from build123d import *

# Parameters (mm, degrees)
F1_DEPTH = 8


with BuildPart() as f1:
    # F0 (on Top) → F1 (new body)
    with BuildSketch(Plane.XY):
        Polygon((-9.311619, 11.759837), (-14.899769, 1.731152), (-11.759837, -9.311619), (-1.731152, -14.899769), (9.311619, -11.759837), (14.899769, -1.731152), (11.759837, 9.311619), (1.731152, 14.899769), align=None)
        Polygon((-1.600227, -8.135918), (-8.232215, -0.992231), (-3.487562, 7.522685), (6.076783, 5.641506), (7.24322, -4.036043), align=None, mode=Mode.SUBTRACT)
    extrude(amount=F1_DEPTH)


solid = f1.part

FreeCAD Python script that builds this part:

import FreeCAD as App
import Part
import Sketcher
from FreeCAD import Vector

doc = App.newDocument("Part")
body = doc.addObject("PartDesign::Body", "Body")

sketch1 = body.newObject("Sketcher::SketchObject", "Sketch")
sketch1.AttachmentSupport = (doc.getObject("XY_Plane"), [""])
sketch1.MapMode = "FlatFace"
sketch1.addGeometry(Part.LineSegment(Vector(-9, 12, 0), Vector(-15, 2, 0)), False)
sketch1.addGeometry(Part.LineSegment(Vector(-15, 2, 0), Vector(-12, -9, 0)), False)
sketch1.addGeometry(Part.LineSegment(Vector(-12, -9, 0), Vector(-2, -15, 0)), False)
sketch1.addGeometry(Part.LineSegment(Vector(-2, -15, 0), Vector(9, -12, 0)), False)
sketch1.addGeometry(Part.LineSegment(Vector(9, -12, 0), Vector(15, -2, 0)), False)
sketch1.addGeometry(Part.LineSegment(Vector(15, -2, 0), Vector(12, 9, 0)), False)
sketch1.addGeometry(Part.LineSegment(Vector(12, 9, 0), Vector(2, 15, 0)), False)
sketch1.addGeometry(Part.LineSegment(Vector(2, 15, 0), Vector(-9, 12, 0)), False)
sketch1.addGeometry(Part.LineSegment(Vector(7, -4, 0), Vector(-2, -8, 0)), False)
sketch1.addGeometry(Part.LineSegment(Vector(-2, -8, 0), Vector(-8, -1, 0)), False)
sketch1.addGeometry(Part.LineSegment(Vector(-8, -1, 0), Vector(-3, 8, 0)), False)
sketch1.addGeometry(Part.LineSegment(Vector(-3, 8, 0), Vector(6, 6, 0)), False)
sketch1.addGeometry(Part.LineSegment(Vector(6, 6, 0), Vector(7, -4, 0)), False)
sketch1.addConstraint(Sketcher.Constraint("Coincident", 0, 2, 1, 1))
sketch1.addConstraint(Sketcher.Constraint("Coincident", 1, 2, 2, 1))
sketch1.addConstraint(Sketcher.Constraint("Coincident", 2, 2, 3, 1))
sketch1.addConstraint(Sketcher.Constraint("Coincident", 3, 2, 4, 1))
sketch1.addConstraint(Sketcher.Constraint("Coincident", 4, 2, 5, 1))
sketch1.addConstraint(Sketcher.Constraint("Coincident", 5, 2, 6, 1))
sketch1.addConstraint(Sketcher.Constraint("Coincident", 6, 2, 7, 1))
sketch1.addConstraint(Sketcher.Constraint("Coincident", 7, 2, 0, 1))
sketch1.addConstraint(Sketcher.Constraint("Coincident", 8, 2, 9, 1))
sketch1.addConstraint(Sketcher.Constraint("Coincident", 9, 2, 10, 1))
sketch1.addConstraint(Sketcher.Constraint("Coincident", 10, 2, 11, 1))
sketch1.addConstraint(Sketcher.Constraint("Coincident", 11, 2, 12, 1))
sketch1.addConstraint(Sketcher.Constraint("Coincident", 12, 2, 8, 1))
sketch1.addConstraint(Sketcher.Constraint("Symmetric", 0, 2, 4, 2, -1, 1))
sketch1.addConstraint(Sketcher.Constraint("Symmetric", 1, 2, 5, 2, -1, 1))
sketch1.addConstraint(Sketcher.Constraint("Symmetric", 2, 2, 6, 2, -1, 1))
sketch1.addConstraint(Sketcher.Constraint("Symmetric", 3, 2, 7, 2, -1, 1))
sketch1.addConstraint(Sketcher.Constraint("Perpendicular", 0, 2))
sketch1.addConstraint(Sketcher.Constraint("Perpendicular", 1, 3))
sketch1.addConstraint(Sketcher.Constraint("Perpendicular", 6, 10))
sketch1.addConstraint(Sketcher.Constraint("Equal", 0, 1))
sketch1.addConstraint(Sketcher.Constraint("Equal", 1, 2))
sketch1.addConstraint(Sketcher.Constraint("Equal", 2, 3))
sketch1.addConstraint(Sketcher.Constraint("Equal", 8, 9))
sketch1.addConstraint(Sketcher.Constraint("Equal", 9, 10))
sketch1.addConstraint(Sketcher.Constraint("Equal", 10, 11))
sketch1.addConstraint(Sketcher.Constraint("Equal", 11, 12))
sketch1.addConstraint(Sketcher.Constraint("DistanceY", 1, 2, 8, 2, 1.175701))
sketch1.addConstraint(Sketcher.Constraint("DistanceX", 10, 2, 5, 2, 15.247399))
sketch1.addConstraint(Sketcher.Constraint("DistanceX", 12, 2, 3, 2, 2.068399))
sketch1.addConstraint(Sketcher.Constraint("Distance", 8, 9.747591))
sketch1.addConstraint(Sketcher.Constraint("DistanceX", 0, 2, -1, 1, 14.899769))
sketch1.addConstraint(Sketcher.Constraint("DistanceY", 1, 2, -1, 1, 9.311619))
sketch1.addConstraint(Sketcher.Constraint("DistanceY", 9, 2, -1, 1, 0.992231))
sketch1.addConstraint(Sketcher.Constraint("DistanceX", 10, 2, -1, 1, 3.487562))
pad1 = body.newObject("PartDesign::Pad", "Pad")
pad1.Profile = sketch1
pad1.Length = 8

doc.recompute()
